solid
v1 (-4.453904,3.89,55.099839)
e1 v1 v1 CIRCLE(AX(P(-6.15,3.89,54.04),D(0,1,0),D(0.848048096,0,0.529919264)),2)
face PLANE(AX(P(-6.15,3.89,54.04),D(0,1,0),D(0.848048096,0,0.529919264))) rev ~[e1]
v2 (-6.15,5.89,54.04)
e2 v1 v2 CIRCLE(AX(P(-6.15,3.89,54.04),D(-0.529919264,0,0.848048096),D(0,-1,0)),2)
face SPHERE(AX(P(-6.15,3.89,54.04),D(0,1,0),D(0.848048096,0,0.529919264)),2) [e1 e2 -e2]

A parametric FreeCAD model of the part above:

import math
import FreeCAD as App
import Part
import Sketcher
Q = App.Units.Quantity


def add_polygon(sketch, points):
    """Adds a closed chain of lines whose ends are joined by coincident constraints."""
    first, n = sketch.GeometryCount, len(points)
    for a, b in zip(points, points[1:] + points[:1]):
        sketch.addGeometry(Part.LineSegment(App.Vector(*a, 0), App.Vector(*b, 0)), False)
    for i in range(n):
        sketch.addConstraint(Sketcher.Constraint("Coincident", first + i, 2, first + (i + 1) % n, 1))

doc = App.newDocument("Part")
params = doc.addObject("Spreadsheet::Sheet", "Params")
for row, (alias, value) in enumerate([
    ("sketch1_width", "10 mm"),
    ("pad1_length", "10 mm"),
    ("sketch2_radius", "2 mm"),
    ("revolution_angle", "360 deg"),
], start=1):
    params.set(f"A{row}", alias)
    params.set(f"B{row}", "=" + value)
    params.setAlias(f"B{row}", alias)

body = doc.addObject("PartDesign::Body", "Body")

sketch1 = body.newObject("Sketcher::SketchObject", "Sketch")
sketch1.AttachmentSupport = (doc.getObject("XY_Plane"), [""])
sketch1.MapMode = "FlatFace"
sketch1.AttachmentOffset = App.Placement(App.Vector(0, 0, -10), App.Rotation())
add_polygon(sketch1, [(-5, 5), (-5, -5), (5, -5), (5, 5)])
sketch1.addConstraint([
    Sketcher.Constraint("Vertical", 0),
    Sketcher.Constraint("Horizontal", 1),
    Sketcher.Constraint("Vertical", 2),
    Sketcher.Constraint("Horizontal", 3),
    Sketcher.Constraint("Symmetric", 0, 2, 2, 2, -1, 1),
    Sketcher.Constraint("Equal", 3, 0),
    Sketcher.Constraint("DistanceX", 1, 1, 1, 2, Q("10 mm")),
])
sketch1.setExpression("Constraints[10]", "Params.sketch1_width")
pad1 = body.newObject("PartDesign::Pad", "Pad")
pad1.Profile = sketch1
pad1.setExpression("Length", "Params.pad1_length")
body2 = doc.addObject("PartDesign::Body", "Body001")

sketch2 = body2.newObject("Sketcher::SketchObject", "Sketch001")
sketch2.AttachmentSupport = (doc.getObject("XZ_Plane001"), [""])
sketch2.MapMode = "FlatFace"
sketch2.addGeometry([
    Part.ArcOfCircle(Part.Circle(App.Vector(0, 0, 0), App.Vector(0, 0, 1), 2), math.radians(-90), math.radians(90)),
    Part.LineSegment(App.Vector(0, 2, 0), App.Vector(0, -2, 0)),
], False)
sketch2.addConstraint([
    Sketcher.Constraint("Coincident", 0, 1, 1, 2),
    Sketcher.Constraint("Coincident", 1, 1, 0, 2),
    Sketcher.Constraint("Vertical", 1),
    Sketcher.Constraint("Coincident", 0, 3, -1, 1),
    Sketcher.Constraint("PointOnObject", 0, 1, -2),
    Sketcher.Constraint("Radius", 0, Q("2 mm")),
])
sketch2.setExpression("Constraints[5]", "Params.sketch2_radius")
revolution = body2.newObject("PartDesign::Revolution", "Revolution")
revolution.Profile = sketch2
revolution.ReferenceAxis = (sketch2, ["V_Axis"])
revolution.setExpression("Angle", "Params.revolution_angle")
doc.recompute()

boolean = body2.newObject("PartDesign::Boolean", "Boolean")
boolean.Type = "Cut"
boolean.addObjects([body])
body3 = doc.addObject("PartDesign::Body", "Body002")
doc.recompute()

body2.Placement = App.Placement(App.Vector(0, 0, 0), App.Rotation(App.Vector(1, 0, 0), 270))
boolean2 = body3.newObject("PartDesign::Boolean", "Boolean001")
boolean2.Type = "Fuse"
boolean2.addObjects([body2])
body4 = doc.addObject("PartDesign::Body", "Body003")
doc.recompute()

body3.Placement = App.Placement(App.Vector(0, 0, 0), App.Rotation(App.Vector(0, 1, 0), 328))
boolean3 = body4.newObject("PartDesign::Boolean", "Boolean002")
boolean3.Type = "Fuse"
boolean3.addObjects([body3])
body5 = doc.addObject("PartDesign::Body", "Body004")
doc.recompute()

body4.Placement = App.Placement(App.Vector(-6.15, 3.89, 54.04), App.Rotation(App.Vector(0, 0, 1), 0))
boolean4 = body5.newObject("PartDesign::Boolean", "Boolean003")
boolean4.Type = "Fuse"
boolean4.addObjects([body4])

doc.recompute()
